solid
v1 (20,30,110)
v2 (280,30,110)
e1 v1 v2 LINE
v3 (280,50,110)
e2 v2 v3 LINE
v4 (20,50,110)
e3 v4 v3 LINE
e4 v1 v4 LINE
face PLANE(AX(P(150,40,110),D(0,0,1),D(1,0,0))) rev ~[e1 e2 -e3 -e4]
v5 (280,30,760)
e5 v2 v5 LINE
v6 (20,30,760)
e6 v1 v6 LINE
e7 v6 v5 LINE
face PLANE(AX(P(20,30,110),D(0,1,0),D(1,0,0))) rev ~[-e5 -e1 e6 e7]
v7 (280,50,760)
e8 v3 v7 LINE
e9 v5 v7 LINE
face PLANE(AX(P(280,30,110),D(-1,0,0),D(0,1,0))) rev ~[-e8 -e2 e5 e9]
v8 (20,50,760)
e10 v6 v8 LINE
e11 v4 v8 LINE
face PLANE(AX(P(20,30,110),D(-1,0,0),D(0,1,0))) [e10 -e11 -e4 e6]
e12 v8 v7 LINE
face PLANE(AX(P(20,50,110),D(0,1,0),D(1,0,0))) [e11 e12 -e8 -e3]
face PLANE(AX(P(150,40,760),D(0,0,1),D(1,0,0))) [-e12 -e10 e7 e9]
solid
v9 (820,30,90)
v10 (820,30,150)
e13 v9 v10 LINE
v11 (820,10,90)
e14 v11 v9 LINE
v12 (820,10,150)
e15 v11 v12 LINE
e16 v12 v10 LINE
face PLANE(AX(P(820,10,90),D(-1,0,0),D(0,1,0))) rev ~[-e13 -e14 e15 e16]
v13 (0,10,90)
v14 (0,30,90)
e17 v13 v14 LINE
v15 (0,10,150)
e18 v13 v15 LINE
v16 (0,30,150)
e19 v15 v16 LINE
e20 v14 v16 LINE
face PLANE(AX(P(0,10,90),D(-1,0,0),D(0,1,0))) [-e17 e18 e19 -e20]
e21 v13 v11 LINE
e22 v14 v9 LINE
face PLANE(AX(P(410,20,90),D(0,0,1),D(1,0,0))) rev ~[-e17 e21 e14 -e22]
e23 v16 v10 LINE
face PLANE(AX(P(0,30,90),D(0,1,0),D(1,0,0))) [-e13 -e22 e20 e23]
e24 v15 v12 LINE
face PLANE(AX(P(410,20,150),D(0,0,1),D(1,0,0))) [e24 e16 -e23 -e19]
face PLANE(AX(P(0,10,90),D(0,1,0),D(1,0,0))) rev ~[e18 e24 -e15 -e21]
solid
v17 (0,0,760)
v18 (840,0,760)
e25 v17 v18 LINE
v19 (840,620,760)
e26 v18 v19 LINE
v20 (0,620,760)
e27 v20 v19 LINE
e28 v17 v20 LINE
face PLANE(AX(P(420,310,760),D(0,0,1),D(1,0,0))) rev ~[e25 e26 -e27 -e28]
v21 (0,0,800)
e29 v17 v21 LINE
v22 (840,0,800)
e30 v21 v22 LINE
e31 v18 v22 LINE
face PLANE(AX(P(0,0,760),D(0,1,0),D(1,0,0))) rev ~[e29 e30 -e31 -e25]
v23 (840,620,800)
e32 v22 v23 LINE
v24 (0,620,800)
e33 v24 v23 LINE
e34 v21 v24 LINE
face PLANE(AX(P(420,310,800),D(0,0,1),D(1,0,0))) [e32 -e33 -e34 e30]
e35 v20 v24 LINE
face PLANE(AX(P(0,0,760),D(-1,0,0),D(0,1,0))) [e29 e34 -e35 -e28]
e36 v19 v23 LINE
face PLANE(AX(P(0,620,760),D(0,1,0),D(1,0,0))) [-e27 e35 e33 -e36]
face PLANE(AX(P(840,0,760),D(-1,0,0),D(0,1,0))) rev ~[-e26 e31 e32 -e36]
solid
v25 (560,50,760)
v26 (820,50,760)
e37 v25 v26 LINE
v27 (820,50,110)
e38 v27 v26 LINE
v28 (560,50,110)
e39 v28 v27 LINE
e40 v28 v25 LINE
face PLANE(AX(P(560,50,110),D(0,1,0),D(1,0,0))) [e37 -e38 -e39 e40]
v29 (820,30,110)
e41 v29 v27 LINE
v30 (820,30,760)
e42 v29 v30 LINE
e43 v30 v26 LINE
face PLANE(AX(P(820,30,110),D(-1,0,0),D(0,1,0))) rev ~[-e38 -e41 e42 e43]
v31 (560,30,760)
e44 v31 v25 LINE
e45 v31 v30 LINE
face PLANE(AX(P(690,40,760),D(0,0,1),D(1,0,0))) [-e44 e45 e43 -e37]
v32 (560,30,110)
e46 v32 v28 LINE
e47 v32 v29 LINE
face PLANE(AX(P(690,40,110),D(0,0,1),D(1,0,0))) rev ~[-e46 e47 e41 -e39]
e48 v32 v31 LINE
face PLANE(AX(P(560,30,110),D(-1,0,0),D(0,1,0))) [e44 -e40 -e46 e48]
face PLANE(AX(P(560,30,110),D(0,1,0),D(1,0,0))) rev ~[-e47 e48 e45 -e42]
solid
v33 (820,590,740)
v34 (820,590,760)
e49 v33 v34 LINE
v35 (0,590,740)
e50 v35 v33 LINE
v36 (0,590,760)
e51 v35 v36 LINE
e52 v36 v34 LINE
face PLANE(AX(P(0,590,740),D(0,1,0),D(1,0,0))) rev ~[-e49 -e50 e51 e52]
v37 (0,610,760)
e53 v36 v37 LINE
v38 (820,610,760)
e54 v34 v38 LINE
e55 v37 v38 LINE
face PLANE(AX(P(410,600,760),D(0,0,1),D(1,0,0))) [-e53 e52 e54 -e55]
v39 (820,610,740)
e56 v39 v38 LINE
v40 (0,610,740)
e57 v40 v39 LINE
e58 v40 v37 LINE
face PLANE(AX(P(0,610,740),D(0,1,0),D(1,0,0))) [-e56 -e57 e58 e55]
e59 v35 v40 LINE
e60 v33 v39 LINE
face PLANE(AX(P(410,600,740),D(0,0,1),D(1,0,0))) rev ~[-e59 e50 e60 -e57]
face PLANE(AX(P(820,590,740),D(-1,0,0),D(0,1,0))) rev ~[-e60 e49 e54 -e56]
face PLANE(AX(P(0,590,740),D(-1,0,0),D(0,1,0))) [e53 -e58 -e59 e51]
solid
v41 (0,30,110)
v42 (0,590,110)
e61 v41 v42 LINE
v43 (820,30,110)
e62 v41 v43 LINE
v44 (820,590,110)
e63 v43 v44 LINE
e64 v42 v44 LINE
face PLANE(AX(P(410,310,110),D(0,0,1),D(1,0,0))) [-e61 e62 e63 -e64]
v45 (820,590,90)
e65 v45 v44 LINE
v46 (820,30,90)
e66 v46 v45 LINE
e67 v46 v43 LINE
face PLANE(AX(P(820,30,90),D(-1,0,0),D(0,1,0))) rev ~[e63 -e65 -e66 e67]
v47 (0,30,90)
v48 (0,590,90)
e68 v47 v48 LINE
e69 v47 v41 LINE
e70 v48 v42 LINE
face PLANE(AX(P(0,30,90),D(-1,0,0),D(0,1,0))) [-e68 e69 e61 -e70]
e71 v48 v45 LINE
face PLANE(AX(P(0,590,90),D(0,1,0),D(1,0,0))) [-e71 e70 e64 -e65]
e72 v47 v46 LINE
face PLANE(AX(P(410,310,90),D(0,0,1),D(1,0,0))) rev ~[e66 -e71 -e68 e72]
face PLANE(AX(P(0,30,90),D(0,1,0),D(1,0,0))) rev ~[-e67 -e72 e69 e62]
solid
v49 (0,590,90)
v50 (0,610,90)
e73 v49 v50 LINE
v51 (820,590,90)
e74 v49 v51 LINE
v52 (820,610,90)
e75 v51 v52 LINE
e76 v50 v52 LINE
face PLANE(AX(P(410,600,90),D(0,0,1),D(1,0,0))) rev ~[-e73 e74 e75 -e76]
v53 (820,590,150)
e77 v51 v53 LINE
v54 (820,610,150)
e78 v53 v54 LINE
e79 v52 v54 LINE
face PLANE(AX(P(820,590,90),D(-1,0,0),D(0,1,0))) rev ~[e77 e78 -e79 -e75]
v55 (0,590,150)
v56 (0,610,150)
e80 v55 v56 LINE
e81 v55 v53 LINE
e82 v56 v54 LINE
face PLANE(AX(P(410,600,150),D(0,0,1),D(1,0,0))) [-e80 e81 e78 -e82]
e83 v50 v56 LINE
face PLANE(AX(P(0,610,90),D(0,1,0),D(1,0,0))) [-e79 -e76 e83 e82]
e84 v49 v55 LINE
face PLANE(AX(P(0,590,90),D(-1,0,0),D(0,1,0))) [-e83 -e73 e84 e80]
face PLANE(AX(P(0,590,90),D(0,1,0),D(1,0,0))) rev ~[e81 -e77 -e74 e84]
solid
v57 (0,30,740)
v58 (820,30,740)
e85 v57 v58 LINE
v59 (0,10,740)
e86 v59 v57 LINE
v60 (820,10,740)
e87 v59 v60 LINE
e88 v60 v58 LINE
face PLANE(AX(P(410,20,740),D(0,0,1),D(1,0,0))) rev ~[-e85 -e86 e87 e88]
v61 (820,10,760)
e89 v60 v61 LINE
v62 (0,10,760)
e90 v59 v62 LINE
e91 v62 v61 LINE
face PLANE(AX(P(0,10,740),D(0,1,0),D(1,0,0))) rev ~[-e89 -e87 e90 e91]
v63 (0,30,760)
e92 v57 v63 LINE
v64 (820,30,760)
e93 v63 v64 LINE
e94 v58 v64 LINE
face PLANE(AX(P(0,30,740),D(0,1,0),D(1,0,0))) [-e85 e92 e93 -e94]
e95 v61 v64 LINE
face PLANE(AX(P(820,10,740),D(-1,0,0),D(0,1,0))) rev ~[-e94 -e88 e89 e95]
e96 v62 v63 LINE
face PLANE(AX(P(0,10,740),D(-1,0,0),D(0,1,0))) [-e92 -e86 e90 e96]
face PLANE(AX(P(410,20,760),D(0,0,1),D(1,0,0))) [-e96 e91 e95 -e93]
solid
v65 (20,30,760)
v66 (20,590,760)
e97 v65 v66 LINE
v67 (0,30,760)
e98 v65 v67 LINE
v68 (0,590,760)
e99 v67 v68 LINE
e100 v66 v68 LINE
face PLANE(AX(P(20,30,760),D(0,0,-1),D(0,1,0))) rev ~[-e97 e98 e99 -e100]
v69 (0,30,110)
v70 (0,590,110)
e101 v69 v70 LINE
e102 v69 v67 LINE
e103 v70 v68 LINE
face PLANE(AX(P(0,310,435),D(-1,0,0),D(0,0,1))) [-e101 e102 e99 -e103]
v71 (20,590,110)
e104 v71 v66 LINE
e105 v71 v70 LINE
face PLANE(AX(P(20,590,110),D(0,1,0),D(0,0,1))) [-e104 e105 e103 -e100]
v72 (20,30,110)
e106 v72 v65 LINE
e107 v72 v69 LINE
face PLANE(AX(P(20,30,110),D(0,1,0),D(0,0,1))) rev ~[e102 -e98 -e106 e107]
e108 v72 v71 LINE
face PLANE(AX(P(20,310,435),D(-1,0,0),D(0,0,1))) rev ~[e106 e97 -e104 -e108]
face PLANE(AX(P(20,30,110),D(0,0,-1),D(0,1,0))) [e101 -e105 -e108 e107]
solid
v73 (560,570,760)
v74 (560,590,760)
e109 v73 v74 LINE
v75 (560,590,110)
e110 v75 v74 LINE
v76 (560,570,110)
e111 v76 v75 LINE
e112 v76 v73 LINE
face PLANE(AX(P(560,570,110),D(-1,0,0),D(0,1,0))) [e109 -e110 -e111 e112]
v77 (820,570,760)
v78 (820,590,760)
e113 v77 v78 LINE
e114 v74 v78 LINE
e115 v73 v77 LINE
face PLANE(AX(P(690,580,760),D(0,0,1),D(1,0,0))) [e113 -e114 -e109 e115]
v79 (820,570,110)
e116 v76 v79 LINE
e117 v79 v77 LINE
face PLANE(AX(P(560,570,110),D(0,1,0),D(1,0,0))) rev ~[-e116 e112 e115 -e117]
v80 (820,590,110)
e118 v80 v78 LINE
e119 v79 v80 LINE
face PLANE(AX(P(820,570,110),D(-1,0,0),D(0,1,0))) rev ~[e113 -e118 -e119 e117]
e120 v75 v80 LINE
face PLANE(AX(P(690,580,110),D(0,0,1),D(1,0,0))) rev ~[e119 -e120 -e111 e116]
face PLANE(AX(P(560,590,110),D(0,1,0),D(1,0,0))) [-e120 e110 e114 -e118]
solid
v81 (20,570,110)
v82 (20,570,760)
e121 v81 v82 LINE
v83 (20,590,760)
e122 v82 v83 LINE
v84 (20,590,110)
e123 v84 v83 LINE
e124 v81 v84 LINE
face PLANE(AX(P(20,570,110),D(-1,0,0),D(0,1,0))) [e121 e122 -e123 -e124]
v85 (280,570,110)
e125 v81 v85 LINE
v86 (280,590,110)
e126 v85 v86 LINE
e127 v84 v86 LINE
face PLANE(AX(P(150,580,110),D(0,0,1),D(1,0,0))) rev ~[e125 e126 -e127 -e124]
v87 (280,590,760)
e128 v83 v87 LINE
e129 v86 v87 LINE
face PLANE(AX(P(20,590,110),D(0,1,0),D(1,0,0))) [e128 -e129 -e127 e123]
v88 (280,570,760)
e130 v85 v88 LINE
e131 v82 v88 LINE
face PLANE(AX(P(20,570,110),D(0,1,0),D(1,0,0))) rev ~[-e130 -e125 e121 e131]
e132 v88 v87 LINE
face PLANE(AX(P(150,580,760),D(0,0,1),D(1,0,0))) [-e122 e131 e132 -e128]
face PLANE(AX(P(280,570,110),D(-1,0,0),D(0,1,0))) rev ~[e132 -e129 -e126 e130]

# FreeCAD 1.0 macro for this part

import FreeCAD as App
import Part
import Sketcher
Q = App.Units.Quantity


def add_polygon(sketch, points):
    """Adds a closed chain of lines whose ends are joined by coincident constraints."""
    first, n = sketch.GeometryCount, len(points)
    for a, b in zip(points, points[1:] + points[:1]):
        sketch.addGeometry(Part.LineSegment(App.Vector(*a, 0), App.Vector(*b, 0)), False)
    for i in range(n):
        sketch.addConstraint(Sketcher.Constraint("Coincident", first + i, 2, first + (i + 1) % n, 1))

doc = App.newDocument("Part")
body = doc.addObject("PartDesign::Body", "Body")

# Sketch on XY plane
sketch1 = doc.addObject("Sketcher::SketchObject", "Sketch")
body.addObject(sketch1)
sketch1.AttachmentSupport = (doc.XY_Plane, [""])
sketch1.MapMode = "FlatFace"
sketch1.AttachmentOffset = App.Placement(App.Vector(0, 0, 760), App.Rotation())
add_polygon(sketch1, [(0, 620), (0, 0), (840, 0), (840, 620)])  # lines 0-3
sketch1.addConstraint([
    Sketcher.Constraint("Vertical", 0),
    Sketcher.Constraint("Horizontal", 1),
    Sketcher.Constraint("Vertical", 2),
    Sketcher.Constraint("Horizontal", 3),
    Sketcher.Constraint("Coincident", 0, 2, -1, 1),
    Sketcher.Constraint("DistanceX", 1, 1, 1, 2, Q("840 mm")),
    Sketcher.Constraint("DistanceY", 0, 2, 0, 1, Q("620 mm")),
])
pad1 = doc.addObject("PartDesign::Pad", "Pad")
body.addObject(pad1)
pad1.Profile = sketch1
pad1.Length = 40
body2 = doc.addObject("PartDesign::Body", "Body001")

# Sketch on YZ plane
sketch2 = doc.addObject("Sketcher::SketchObject", "Sketch001")
body2.addObject(sketch2)
sketch2.AttachmentSupport = (doc.getObject("YZ_Plane001"), [""])
sketch2.MapMode = "FlatFace"
sketch2.AttachmentOffset = App.Placement(App.Vector(0, 0, 20), App.Rotation())
add_polygon(sketch2, [(590, 110), (30, 110), (30, 760), (590, 760)])  # lines 0-3
sketch2.addConstraint([
    Sketcher.Constraint("Horizontal", 0),
    Sketcher.Constraint("Vertical", 1),
    Sketcher.Constraint("Horizontal", 2),
    Sketcher.Constraint("Vertical", 3),
    Sketcher.Constraint("DistanceX", 0, 2, 0, 1, Q("560 mm")),
    Sketcher.Constraint("DistanceY", 1, 1, 1, 2, Q("650 mm")),
    Sketcher.Constraint("DistanceX", -1, 1, 0, 2, Q("30 mm")),
    Sketcher.Constraint("DistanceY", -1, 1, 0, 2, Q("110 mm")),
])
pad2 = doc.addObject("PartDesign::Pad", "Pad001")
body2.addObject(pad2)
pad2.Profile = sketch2
pad2.Length = 20
pad2.Reversed = True
body3 = doc.addObject("PartDesign::Body", "Body002")

# Sketch on XY plane
sketch3 = doc.addObject("Sketcher::SketchObject", "Sketch002")
body3.addObject(sketch3)
sketch3.AttachmentSupport = (doc.getObject("XY_Plane002"), [""])
sketch3.MapMode = "FlatFace"
sketch3.AttachmentOffset = App.Placement(App.Vector(0, 0, 90), App.Rotation())
add_polygon(sketch3, [(0, 590), (0, 30), (820, 30), (820, 590)])  # lines 0-3
sketch3.addConstraint([
    Sketcher.Constraint("Vertical", 0),
    Sketcher.Constraint("Horizontal", 1),
    Sketcher.Constraint("Vertical", 2),
    Sketcher.Constraint("Horizontal", 3),
    Sketcher.Constraint("PointOnObject", 0, 2, -2),
    Sketcher.Constraint("DistanceX", 1, 1, 1, 2, Q("820 mm")),
    Sketcher.Constraint("DistanceY", 0, 2, 0, 1, Q("560 mm")),
    Sketcher.Constraint("DistanceY", -1, 1, 0, 2, Q("30 mm")),
])
pad3 = doc.addObject("PartDesign::Pad", "Pad002")
body3.addObject(pad3)
pad3.Profile = sketch3
pad3.Length = 20
body4 = doc.addObject("PartDesign::Body", "Body003")

# Sketch on XY plane
sketch4 = doc.addObject("Sketcher::SketchObject", "Sketch003")
body4.addObject(sketch4)
sketch4.AttachmentSupport = (doc.getObject("XY_Plane003"), [""])
sketch4.MapMode = "FlatFace"
sketch4.AttachmentOffset = App.Placement(App.Vector(0, 0, 110), App.Rotation())
add_polygon(sketch4, [(20, 50), (20, 30), (280, 30), (280, 50)])  # lines 0-3
sketch4.addConstraint([
    Sketcher.Constraint("Vertical", 0),
    Sketcher.Constraint("Horizontal", 1),
    Sketcher.Constraint("Vertical", 2),
    Sketcher.Constraint("Horizontal", 3),
    Sketcher.Constraint("DistanceX", 1, 1, 1, 2, Q("260 mm")),
    Sketcher.Constraint("DistanceY", 0, 2, 0, 1, Q("20 mm")),
    Sketcher.Constraint("DistanceX", -1, 1, 0, 2, Q("20 mm")),
    Sketcher.Constraint("DistanceY", -1, 1, 0, 2, Q("30 mm")),
])
pad4 = doc.addObject("PartDesign::Pad", "Pad003")
body4.addObject(pad4)
pad4.Profile = sketch4
pad4.Length = 650
body5 = doc.addObject("PartDesign::Body", "Body004")

# Sketch on XY plane
sketch5 = doc.addObject("Sketcher::SketchObject", "Sketch004")
body5.addObject(sketch5)
sketch5.AttachmentSupport = (doc.getObject("XY_Plane004"), [""])
sketch5.MapMode = "FlatFace"
sketch5.AttachmentOffset = App.Placement(App.Vector(0, 0, 110), App.Rotation())
add_polygon(sketch5, [(20, 590), (20, 570), (280, 570), (280, 590)])  # lines 0-3
sketch5.addConstraint([
    Sketcher.Constraint("Vertical", 0),
    Sketcher.Constraint("Horizontal", 1),
    Sketcher.Constraint("Vertical", 2),
    Sketcher.Constraint("Horizontal", 3),
    Sketcher.Constraint("DistanceX", 1, 1, 1, 2, Q("260 mm")),
    Sketcher.Constraint("DistanceY", 0, 2, 0, 1, Q("20 mm")),
    Sketcher.Constraint("DistanceX", -1, 1, 0, 2, Q("20 mm")),
    Sketcher.Constraint("DistanceY", -1, 1, 0, 2, Q("570 mm")),
])
pad5 = doc.addObject("PartDesign::Pad", "Pad004")
body5.addObject(pad5)
pad5.Profile = sketch5
pad5.Length = 650
body6 = doc.addObject("PartDesign::Body", "Body005")

# Sketch on XY plane
sketch6 = doc.addObject("Sketcher::SketchObject", "Sketch005")
body6.addObject(sketch6)
sketch6.AttachmentSupport = (doc.getObject("XY_Plane005"), [""])
sketch6.MapMode = "FlatFace"
sketch6.AttachmentOffset = App.Placement(App.Vector(0, 0, 110), App.Rotation())
add_polygon(sketch6, [(560, 50), (560, 30), (820, 30), (820, 50)])  # lines 0-3
sketch6.addConstraint([
    Sketcher.Constraint("Vertical", 0),
    Sketcher.Constraint("Horizontal", 1),
    Sketcher.Constraint("Vertical", 2),
    Sketcher.Constraint("Horizontal", 3),
    Sketcher.Constraint("DistanceX", 1, 1, 1, 2, Q("260 mm")),
    Sketcher.Constraint("DistanceY", 0, 2, 0, 1, Q("20 mm")),
    Sketcher.Constraint("DistanceX", -1, 1, 0, 2, Q("560 mm")),
    Sketcher.Constraint("DistanceY", -1, 1, 0, 2, Q("30 mm")),
])
pad6 = doc.addObject("PartDesign::Pad", "Pad005")
body6.addObject(pad6)
pad6.Profile = sketch6
pad6.Length = 650
body7 = doc.addObject("PartDesign::Body", "Body006")

# Sketch on XY plane
sketch7 = doc.addObject("Sketcher::SketchObject", "Sketch006")
body7.addObject(sketch7)
sketch7.AttachmentSupport = (doc.getObject("XY_Plane006"), [""])
sketch7.MapMode = "FlatFace"
sketch7.AttachmentOffset = App.Placement(App.Vector(0, 0, 110), App.Rotation())
add_polygon(sketch7, [(560, 590), (560, 570), (820, 570), (820, 590)])  # lines 0-3
sketch7.addConstraint([
    Sketcher.Constraint("Vertical", 0),
    Sketcher.Constraint("Horizontal", 1),
    Sketcher.Constraint("Vertical", 2),
    Sketcher.Constraint("Horizontal", 3),
    Sketcher.Constraint("DistanceX", 1, 1, 1, 2, Q("260 mm")),
    Sketcher.Constraint("DistanceY", 0, 2, 0, 1, Q("20 mm")),
    Sketcher.Constraint("DistanceX", -1, 1, 0, 2, Q("560 mm")),
    Sketcher.Constraint("DistanceY", -1, 1, 0, 2, Q("570 mm")),
])
pad7 = doc.addObject("PartDesign::Pad", "Pad006")
body7.addObject(pad7)
pad7.Profile = sketch7
pad7.Length = 650
body8 = doc.addObject("PartDesign::Body", "Body007")

# Sketch on XY plane
sketch8 = doc.addObject("Sketcher::SketchObject", "Sketch007")
body8.addObject(sketch8)
sketch8.AttachmentSupport = (doc.getObject("XY_Plane007"), [""])
sketch8.MapMode = "FlatFace"
sketch8.AttachmentOffset = App.Placement(App.Vector(0, 0, 90), App.Rotation())
add_polygon(sketch8, [(0, 30), (0, 10), (820, 10), (820, 30)])  # lines 0-3
sketch8.addConstraint([
    Sketcher.Constraint("Vertical", 0),
    Sketcher.Constraint("Horizontal", 1),
    Sketcher.Constraint("Vertical", 2),
    Sketcher.Constraint("Horizontal", 3),
    Sketcher.Constraint("PointOnObject", 0, 2, -2),
    Sketcher.Constraint("DistanceX", 1, 1, 1, 2, Q("820 mm")),
    Sketcher.Constraint("DistanceY", 0, 2, 0, 1, Q("20 mm")),
    Sketcher.Constraint("DistanceY", -1, 1, 0, 2, Q("10 mm")),
])
pad8 = doc.addObject("PartDesign::Pad", "Pad007")
body8.addObject(pad8)
pad8.Profile = sketch8
pad8.Length = 60
body9 = doc.addObject("PartDesign::Body", "Body008")

# Sketch on XY plane
sketch9 = doc.addObject("Sketcher::SketchObject", "Sketch008")
body9.addObject(sketch9)
sketch9.AttachmentSupport = (doc.getObject("XY_Plane008"), [""])
sketch9.MapMode = "FlatFace"
sketch9.AttachmentOffset = App.Placement(App.Vector(0, 0, 90), App.Rotation())
add_polygon(sketch9, [(0, 610), (0, 590), (820, 590), (820, 610)])  # lines 0-3
sketch9.addConstraint([
    Sketcher.Constraint("Vertical", 0),
    Sketcher.Constraint("Horizontal", 1),
    Sketcher.Constraint("Vertical", 2),
    Sketcher.Constraint("Horizontal", 3),
    Sketcher.Constraint("PointOnObject", 0, 2, -2),
    Sketcher.Constraint("DistanceX", 1, 1, 1, 2, Q("820 mm")),
    Sketcher.Constraint("DistanceY", 0, 2, 0, 1, Q("20 mm")),
    Sketcher.Constraint("DistanceY", -1, 1, 0, 2, Q("590 mm")),
])
pad9 = doc.addObject("PartDesign::Pad", "Pad008")
body9.addObject(pad9)
pad9.Profile = sketch9
pad9.Length = 60
body10 = doc.addObject("PartDesign::Body", "Body009")

# Sketch on XY plane
sketch10 = doc.addObject("Sketcher::SketchObject", "Sketch009")
body10.addObject(sketch10)
sketch10.AttachmentSupport = (doc.getObject("XY_Plane009"), [""])
sketch10.MapMode = "FlatFace"
sketch10.AttachmentOffset = App.Placement(App.Vector(0, 0, 740), App.Rotation())
add_polygon(sketch10, [(0, 30), (0, 10), (820, 10), (820, 30)])  # lines 0-3
sketch10.addConstraint([
    Sketcher.Constraint("Vertical", 0),
    Sketcher.Constraint("Horizontal", 1),
    Sketcher.Constraint("Vertical", 2),
    Sketcher.Constraint("Horizontal", 3),
    Sketcher.Constraint("PointOnObject", 0, 2, -2),
    Sketcher.Constraint("DistanceX", 1, 1, 1, 2, Q("820 mm")),
    Sketcher.Constraint("DistanceY", 0, 2, 0, 1, Q("20 mm")),
    Sketcher.Constraint("DistanceY", -1, 1, 0, 2, Q("10 mm")),
])
pad10 = doc.addObject("PartDesign::Pad", "Pad009")
body10.addObject(pad10)
pad10.Profile = sketch10
pad10.Length = 20
body11 = doc.addObject("PartDesign::Body", "Body010")

# Sketch on XY plane
sketch11 = doc.addObject("Sketcher::SketchObject", "Sketch010")
body11.addObject(sketch11)
sketch11.AttachmentSupport = (doc.getObject("XY_Plane010"), [""])
sketch11.MapMode = "FlatFace"
sketch11.AttachmentOffset = App.Placement(App.Vector(0, 0, 740), App.Rotation())
add_polygon(sketch11, [(0, 610), (0, 590), (820, 590), (820, 610)])  # lines 0-3
sketch11.addConstraint([
    Sketcher.Constraint("Vertical", 0),
    Sketcher.Constraint("Horizontal", 1),
    Sketcher.Constraint("Vertical", 2),
    Sketcher.Constraint("Horizontal", 3),
    Sketcher.Constraint("PointOnObject", 0, 2, -2),
    Sketcher.Constraint("DistanceX", 1, 1, 1, 2, Q("820 mm")),
    Sketcher.Constraint("DistanceY", 0, 2, 0, 1, Q("20 mm")),
    Sketcher.Constraint("DistanceY", -1, 1, 0, 2, Q("590 mm")),
])
pad11 = doc.addObject("PartDesign::Pad", "Pad010")
body11.addObject(pad11)
pad11.Profile = sketch11
pad11.Length = 20

doc.recompute()
